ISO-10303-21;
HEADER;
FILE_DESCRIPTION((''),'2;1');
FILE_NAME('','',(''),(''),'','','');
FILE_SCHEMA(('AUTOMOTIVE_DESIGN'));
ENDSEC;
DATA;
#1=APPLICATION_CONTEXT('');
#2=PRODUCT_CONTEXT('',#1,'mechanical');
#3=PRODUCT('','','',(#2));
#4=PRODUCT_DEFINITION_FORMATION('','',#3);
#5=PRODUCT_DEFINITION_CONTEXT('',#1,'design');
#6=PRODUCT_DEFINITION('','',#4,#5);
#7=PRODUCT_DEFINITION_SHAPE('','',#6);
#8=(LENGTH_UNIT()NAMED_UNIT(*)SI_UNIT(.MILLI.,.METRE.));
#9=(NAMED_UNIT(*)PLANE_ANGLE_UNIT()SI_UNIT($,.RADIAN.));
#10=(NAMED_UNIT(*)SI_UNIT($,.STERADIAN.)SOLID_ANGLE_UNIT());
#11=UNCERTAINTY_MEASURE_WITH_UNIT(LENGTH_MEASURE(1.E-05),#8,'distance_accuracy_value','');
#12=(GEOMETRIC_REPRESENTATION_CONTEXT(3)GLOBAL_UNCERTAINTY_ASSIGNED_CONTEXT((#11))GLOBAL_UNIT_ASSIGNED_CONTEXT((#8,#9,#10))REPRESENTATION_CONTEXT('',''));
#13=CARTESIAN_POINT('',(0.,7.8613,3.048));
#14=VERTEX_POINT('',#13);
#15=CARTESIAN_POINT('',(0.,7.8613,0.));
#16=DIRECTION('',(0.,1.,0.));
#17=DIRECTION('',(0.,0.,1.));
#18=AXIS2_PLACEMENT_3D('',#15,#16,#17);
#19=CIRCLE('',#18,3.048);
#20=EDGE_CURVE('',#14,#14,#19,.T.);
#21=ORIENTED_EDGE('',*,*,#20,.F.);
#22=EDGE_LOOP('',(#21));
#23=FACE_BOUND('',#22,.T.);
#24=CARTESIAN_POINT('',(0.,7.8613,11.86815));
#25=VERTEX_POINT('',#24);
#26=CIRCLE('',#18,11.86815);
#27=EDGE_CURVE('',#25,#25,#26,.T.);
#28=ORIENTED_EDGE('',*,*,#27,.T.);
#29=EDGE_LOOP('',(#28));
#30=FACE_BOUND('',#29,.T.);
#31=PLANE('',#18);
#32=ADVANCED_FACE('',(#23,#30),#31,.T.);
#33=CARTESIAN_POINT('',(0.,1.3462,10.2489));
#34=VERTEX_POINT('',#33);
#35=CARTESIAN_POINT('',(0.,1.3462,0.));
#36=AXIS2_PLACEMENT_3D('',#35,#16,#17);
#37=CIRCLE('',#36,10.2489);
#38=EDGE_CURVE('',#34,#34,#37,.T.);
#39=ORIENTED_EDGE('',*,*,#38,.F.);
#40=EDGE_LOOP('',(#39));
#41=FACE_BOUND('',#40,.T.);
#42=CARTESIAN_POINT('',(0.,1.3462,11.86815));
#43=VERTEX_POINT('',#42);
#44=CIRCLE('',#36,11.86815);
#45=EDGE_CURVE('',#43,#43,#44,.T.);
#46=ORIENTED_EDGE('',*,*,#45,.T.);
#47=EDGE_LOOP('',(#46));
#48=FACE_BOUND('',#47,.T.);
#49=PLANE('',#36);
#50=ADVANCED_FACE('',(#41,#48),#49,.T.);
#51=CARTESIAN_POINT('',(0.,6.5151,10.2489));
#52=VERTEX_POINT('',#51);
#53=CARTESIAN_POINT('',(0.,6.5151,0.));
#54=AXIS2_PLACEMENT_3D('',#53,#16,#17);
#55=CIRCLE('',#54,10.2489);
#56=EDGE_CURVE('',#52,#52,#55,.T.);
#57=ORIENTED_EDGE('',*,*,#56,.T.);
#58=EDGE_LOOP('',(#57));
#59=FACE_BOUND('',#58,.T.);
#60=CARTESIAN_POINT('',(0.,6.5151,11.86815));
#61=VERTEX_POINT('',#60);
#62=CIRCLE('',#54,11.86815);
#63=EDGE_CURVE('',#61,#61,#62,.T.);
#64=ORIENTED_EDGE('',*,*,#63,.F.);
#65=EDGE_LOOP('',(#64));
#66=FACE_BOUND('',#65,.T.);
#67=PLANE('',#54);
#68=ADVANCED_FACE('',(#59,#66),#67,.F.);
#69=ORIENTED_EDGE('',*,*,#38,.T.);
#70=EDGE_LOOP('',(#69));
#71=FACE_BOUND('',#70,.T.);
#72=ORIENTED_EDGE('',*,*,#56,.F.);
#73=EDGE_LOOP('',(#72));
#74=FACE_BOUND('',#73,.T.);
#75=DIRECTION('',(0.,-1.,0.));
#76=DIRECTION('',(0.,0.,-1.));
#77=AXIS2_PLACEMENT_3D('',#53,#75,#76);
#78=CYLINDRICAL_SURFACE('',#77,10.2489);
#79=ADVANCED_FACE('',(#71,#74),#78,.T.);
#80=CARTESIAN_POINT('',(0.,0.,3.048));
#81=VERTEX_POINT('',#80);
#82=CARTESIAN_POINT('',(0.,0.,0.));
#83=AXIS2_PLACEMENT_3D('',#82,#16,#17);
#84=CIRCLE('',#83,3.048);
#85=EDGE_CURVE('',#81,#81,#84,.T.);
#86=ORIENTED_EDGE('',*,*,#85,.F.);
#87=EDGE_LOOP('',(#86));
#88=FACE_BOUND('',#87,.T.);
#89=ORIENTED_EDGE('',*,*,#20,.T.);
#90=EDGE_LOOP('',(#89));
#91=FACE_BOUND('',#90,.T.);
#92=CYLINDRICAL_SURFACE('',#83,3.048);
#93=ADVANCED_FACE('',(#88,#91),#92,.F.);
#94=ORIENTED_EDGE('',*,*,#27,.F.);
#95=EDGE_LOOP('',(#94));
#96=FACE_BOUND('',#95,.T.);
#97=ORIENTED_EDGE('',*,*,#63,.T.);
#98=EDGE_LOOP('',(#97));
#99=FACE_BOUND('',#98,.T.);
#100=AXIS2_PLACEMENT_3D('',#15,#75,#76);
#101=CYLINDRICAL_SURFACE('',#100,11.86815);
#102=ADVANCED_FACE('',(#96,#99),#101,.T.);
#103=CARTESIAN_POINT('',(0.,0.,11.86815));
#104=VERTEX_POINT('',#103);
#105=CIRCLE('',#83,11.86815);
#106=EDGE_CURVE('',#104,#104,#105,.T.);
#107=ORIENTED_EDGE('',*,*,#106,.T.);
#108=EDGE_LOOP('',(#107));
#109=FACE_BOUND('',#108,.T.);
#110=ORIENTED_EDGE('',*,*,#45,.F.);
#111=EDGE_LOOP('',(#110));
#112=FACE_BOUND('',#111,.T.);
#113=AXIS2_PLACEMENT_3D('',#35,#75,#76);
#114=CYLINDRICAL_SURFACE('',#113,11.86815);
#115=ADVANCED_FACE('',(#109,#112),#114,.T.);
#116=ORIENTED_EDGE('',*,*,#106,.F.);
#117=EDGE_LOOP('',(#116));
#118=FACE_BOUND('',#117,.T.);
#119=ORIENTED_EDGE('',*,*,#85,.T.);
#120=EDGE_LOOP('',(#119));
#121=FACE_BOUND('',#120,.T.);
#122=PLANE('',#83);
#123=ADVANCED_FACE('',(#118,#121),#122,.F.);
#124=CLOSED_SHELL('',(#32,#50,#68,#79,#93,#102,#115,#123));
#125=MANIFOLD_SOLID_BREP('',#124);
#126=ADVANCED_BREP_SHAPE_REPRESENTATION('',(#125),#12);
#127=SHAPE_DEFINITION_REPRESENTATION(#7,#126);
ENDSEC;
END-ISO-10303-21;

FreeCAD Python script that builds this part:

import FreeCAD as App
import Part
import Sketcher
Q = App.Units.Quantity

doc = App.newDocument("Part")
params = doc.addObject("Spreadsheet::Sheet", "Params")
for row, (alias, value) in enumerate([
    ("pad1_length", "0.053 in"),
    ("sketch2_diameter", "0.807 in"),
    ("pad2_length", "0.2035 in"),
    ("pad3_length", "0.053 in"),
    ("sketch4_diameter", "0.24 in"),
], start=1):
    params.set(f"A{row}", alias)
    params.set(f"B{row}", "=" + value)
    params.setAlias(f"B{row}", alias)

body = doc.addObject("PartDesign::Body", "Body")

sketch1 = body.newObject("Sketcher::SketchObject", "Sketch")
sketch1.AttachmentSupport = (doc.getObject("XZ_Plane"), [""])
sketch1.MapMode = "FlatFace"
sketch1.addGeometry(Part.Circle(App.Vector(0, 0, 0), App.Vector(0, 0, 1), 11.86815), False)
sketch1.addConstraint([
    Sketcher.Constraint("Coincident", 0, 3, -1, 1),
    Sketcher.Constraint("Diameter", 0, Q("0.9345 in")),
])
pad1 = body.newObject("PartDesign::Pad", "Pad")
pad1.Profile = sketch1
pad1.setExpression("Length", "Params.pad1_length")
pad1.Reversed = True

sketch2 = body.newObject("Sketcher::SketchObject", "Sketch001")
sketch2.AttachmentSupport = (doc.getObject("XZ_Plane"), [""])
sketch2.MapMode = "FlatFace"
sketch2.AttachmentOffset = App.Placement(App.Vector(0, 0, -0.053 * 25.4), App.Rotation())
sketch2.addGeometry(Part.Circle(App.Vector(0, 0, 0), App.Vector(0, 0, 1), 10.2489), False)
sketch2.addConstraint([
    Sketcher.Constraint("Coincident", 0, 3, -1, 1),
    Sketcher.Constraint("Diameter", 0, Q("0.807 in")),
])
sketch2.setExpression("Constraints[1]", "Params.sketch2_diameter")
pad2 = body.newObject("PartDesign::Pad", "Pad001")
pad2.Profile = sketch2
pad2.setExpression("Length", "Params.pad2_length")
pad2.Reversed = True

sketch3 = body.newObject("Sketcher::SketchObject", "Sketch002")
sketch3.AttachmentSupport = (doc.getObject("XZ_Plane"), [""])
sketch3.MapMode = "FlatFace"
sketch3.AttachmentOffset = App.Placement(App.Vector(0, 0, -0.2565 * 25.4), App.Rotation())
sketch3.addGeometry(Part.Circle(App.Vector(0, 0, 0), App.Vector(0, 0, 1), 11.86815), False)
sketch3.addConstraint([
    Sketcher.Constraint("Coincident", 0, 3, -1, 1),
    Sketcher.Constraint("Diameter", 0, Q("0.9345 in")),
])
pad3 = body.newObject("PartDesign::Pad", "Pad002")
pad3.Profile = sketch3
pad3.setExpression("Length", "Params.pad3_length")
pad3.Reversed = True

sketch4 = body.newObject("Sketcher::SketchObject", "Sketch003")
sketch4.AttachmentSupport = (doc.getObject("XZ_Plane"), [""])
sketch4.MapMode = "FlatFace"
sketch4.AttachmentOffset = App.Placement(App.Vector(0, 0, -0.3095 * 25.4), App.Rotation())
sketch4.addGeometry(Part.Circle(App.Vector(0, 0, 0), App.Vector(0, 0, 1), 3.048), False)
sketch4.addConstraint([
    Sketcher.Constraint("Coincident", 0, 3, -1, 1),
    Sketcher.Constraint("Diameter", 0, Q("0.24 in")),
])
sketch4.setExpression("Constraints[1]", "Params.sketch4_diameter")
pocket1 = body.newObject("PartDesign::Pocket", "Pocket")
pocket1.Profile = sketch4
pocket1.Type = "ThroughAll"
pocket1.Reversed = True

doc.recompute()
